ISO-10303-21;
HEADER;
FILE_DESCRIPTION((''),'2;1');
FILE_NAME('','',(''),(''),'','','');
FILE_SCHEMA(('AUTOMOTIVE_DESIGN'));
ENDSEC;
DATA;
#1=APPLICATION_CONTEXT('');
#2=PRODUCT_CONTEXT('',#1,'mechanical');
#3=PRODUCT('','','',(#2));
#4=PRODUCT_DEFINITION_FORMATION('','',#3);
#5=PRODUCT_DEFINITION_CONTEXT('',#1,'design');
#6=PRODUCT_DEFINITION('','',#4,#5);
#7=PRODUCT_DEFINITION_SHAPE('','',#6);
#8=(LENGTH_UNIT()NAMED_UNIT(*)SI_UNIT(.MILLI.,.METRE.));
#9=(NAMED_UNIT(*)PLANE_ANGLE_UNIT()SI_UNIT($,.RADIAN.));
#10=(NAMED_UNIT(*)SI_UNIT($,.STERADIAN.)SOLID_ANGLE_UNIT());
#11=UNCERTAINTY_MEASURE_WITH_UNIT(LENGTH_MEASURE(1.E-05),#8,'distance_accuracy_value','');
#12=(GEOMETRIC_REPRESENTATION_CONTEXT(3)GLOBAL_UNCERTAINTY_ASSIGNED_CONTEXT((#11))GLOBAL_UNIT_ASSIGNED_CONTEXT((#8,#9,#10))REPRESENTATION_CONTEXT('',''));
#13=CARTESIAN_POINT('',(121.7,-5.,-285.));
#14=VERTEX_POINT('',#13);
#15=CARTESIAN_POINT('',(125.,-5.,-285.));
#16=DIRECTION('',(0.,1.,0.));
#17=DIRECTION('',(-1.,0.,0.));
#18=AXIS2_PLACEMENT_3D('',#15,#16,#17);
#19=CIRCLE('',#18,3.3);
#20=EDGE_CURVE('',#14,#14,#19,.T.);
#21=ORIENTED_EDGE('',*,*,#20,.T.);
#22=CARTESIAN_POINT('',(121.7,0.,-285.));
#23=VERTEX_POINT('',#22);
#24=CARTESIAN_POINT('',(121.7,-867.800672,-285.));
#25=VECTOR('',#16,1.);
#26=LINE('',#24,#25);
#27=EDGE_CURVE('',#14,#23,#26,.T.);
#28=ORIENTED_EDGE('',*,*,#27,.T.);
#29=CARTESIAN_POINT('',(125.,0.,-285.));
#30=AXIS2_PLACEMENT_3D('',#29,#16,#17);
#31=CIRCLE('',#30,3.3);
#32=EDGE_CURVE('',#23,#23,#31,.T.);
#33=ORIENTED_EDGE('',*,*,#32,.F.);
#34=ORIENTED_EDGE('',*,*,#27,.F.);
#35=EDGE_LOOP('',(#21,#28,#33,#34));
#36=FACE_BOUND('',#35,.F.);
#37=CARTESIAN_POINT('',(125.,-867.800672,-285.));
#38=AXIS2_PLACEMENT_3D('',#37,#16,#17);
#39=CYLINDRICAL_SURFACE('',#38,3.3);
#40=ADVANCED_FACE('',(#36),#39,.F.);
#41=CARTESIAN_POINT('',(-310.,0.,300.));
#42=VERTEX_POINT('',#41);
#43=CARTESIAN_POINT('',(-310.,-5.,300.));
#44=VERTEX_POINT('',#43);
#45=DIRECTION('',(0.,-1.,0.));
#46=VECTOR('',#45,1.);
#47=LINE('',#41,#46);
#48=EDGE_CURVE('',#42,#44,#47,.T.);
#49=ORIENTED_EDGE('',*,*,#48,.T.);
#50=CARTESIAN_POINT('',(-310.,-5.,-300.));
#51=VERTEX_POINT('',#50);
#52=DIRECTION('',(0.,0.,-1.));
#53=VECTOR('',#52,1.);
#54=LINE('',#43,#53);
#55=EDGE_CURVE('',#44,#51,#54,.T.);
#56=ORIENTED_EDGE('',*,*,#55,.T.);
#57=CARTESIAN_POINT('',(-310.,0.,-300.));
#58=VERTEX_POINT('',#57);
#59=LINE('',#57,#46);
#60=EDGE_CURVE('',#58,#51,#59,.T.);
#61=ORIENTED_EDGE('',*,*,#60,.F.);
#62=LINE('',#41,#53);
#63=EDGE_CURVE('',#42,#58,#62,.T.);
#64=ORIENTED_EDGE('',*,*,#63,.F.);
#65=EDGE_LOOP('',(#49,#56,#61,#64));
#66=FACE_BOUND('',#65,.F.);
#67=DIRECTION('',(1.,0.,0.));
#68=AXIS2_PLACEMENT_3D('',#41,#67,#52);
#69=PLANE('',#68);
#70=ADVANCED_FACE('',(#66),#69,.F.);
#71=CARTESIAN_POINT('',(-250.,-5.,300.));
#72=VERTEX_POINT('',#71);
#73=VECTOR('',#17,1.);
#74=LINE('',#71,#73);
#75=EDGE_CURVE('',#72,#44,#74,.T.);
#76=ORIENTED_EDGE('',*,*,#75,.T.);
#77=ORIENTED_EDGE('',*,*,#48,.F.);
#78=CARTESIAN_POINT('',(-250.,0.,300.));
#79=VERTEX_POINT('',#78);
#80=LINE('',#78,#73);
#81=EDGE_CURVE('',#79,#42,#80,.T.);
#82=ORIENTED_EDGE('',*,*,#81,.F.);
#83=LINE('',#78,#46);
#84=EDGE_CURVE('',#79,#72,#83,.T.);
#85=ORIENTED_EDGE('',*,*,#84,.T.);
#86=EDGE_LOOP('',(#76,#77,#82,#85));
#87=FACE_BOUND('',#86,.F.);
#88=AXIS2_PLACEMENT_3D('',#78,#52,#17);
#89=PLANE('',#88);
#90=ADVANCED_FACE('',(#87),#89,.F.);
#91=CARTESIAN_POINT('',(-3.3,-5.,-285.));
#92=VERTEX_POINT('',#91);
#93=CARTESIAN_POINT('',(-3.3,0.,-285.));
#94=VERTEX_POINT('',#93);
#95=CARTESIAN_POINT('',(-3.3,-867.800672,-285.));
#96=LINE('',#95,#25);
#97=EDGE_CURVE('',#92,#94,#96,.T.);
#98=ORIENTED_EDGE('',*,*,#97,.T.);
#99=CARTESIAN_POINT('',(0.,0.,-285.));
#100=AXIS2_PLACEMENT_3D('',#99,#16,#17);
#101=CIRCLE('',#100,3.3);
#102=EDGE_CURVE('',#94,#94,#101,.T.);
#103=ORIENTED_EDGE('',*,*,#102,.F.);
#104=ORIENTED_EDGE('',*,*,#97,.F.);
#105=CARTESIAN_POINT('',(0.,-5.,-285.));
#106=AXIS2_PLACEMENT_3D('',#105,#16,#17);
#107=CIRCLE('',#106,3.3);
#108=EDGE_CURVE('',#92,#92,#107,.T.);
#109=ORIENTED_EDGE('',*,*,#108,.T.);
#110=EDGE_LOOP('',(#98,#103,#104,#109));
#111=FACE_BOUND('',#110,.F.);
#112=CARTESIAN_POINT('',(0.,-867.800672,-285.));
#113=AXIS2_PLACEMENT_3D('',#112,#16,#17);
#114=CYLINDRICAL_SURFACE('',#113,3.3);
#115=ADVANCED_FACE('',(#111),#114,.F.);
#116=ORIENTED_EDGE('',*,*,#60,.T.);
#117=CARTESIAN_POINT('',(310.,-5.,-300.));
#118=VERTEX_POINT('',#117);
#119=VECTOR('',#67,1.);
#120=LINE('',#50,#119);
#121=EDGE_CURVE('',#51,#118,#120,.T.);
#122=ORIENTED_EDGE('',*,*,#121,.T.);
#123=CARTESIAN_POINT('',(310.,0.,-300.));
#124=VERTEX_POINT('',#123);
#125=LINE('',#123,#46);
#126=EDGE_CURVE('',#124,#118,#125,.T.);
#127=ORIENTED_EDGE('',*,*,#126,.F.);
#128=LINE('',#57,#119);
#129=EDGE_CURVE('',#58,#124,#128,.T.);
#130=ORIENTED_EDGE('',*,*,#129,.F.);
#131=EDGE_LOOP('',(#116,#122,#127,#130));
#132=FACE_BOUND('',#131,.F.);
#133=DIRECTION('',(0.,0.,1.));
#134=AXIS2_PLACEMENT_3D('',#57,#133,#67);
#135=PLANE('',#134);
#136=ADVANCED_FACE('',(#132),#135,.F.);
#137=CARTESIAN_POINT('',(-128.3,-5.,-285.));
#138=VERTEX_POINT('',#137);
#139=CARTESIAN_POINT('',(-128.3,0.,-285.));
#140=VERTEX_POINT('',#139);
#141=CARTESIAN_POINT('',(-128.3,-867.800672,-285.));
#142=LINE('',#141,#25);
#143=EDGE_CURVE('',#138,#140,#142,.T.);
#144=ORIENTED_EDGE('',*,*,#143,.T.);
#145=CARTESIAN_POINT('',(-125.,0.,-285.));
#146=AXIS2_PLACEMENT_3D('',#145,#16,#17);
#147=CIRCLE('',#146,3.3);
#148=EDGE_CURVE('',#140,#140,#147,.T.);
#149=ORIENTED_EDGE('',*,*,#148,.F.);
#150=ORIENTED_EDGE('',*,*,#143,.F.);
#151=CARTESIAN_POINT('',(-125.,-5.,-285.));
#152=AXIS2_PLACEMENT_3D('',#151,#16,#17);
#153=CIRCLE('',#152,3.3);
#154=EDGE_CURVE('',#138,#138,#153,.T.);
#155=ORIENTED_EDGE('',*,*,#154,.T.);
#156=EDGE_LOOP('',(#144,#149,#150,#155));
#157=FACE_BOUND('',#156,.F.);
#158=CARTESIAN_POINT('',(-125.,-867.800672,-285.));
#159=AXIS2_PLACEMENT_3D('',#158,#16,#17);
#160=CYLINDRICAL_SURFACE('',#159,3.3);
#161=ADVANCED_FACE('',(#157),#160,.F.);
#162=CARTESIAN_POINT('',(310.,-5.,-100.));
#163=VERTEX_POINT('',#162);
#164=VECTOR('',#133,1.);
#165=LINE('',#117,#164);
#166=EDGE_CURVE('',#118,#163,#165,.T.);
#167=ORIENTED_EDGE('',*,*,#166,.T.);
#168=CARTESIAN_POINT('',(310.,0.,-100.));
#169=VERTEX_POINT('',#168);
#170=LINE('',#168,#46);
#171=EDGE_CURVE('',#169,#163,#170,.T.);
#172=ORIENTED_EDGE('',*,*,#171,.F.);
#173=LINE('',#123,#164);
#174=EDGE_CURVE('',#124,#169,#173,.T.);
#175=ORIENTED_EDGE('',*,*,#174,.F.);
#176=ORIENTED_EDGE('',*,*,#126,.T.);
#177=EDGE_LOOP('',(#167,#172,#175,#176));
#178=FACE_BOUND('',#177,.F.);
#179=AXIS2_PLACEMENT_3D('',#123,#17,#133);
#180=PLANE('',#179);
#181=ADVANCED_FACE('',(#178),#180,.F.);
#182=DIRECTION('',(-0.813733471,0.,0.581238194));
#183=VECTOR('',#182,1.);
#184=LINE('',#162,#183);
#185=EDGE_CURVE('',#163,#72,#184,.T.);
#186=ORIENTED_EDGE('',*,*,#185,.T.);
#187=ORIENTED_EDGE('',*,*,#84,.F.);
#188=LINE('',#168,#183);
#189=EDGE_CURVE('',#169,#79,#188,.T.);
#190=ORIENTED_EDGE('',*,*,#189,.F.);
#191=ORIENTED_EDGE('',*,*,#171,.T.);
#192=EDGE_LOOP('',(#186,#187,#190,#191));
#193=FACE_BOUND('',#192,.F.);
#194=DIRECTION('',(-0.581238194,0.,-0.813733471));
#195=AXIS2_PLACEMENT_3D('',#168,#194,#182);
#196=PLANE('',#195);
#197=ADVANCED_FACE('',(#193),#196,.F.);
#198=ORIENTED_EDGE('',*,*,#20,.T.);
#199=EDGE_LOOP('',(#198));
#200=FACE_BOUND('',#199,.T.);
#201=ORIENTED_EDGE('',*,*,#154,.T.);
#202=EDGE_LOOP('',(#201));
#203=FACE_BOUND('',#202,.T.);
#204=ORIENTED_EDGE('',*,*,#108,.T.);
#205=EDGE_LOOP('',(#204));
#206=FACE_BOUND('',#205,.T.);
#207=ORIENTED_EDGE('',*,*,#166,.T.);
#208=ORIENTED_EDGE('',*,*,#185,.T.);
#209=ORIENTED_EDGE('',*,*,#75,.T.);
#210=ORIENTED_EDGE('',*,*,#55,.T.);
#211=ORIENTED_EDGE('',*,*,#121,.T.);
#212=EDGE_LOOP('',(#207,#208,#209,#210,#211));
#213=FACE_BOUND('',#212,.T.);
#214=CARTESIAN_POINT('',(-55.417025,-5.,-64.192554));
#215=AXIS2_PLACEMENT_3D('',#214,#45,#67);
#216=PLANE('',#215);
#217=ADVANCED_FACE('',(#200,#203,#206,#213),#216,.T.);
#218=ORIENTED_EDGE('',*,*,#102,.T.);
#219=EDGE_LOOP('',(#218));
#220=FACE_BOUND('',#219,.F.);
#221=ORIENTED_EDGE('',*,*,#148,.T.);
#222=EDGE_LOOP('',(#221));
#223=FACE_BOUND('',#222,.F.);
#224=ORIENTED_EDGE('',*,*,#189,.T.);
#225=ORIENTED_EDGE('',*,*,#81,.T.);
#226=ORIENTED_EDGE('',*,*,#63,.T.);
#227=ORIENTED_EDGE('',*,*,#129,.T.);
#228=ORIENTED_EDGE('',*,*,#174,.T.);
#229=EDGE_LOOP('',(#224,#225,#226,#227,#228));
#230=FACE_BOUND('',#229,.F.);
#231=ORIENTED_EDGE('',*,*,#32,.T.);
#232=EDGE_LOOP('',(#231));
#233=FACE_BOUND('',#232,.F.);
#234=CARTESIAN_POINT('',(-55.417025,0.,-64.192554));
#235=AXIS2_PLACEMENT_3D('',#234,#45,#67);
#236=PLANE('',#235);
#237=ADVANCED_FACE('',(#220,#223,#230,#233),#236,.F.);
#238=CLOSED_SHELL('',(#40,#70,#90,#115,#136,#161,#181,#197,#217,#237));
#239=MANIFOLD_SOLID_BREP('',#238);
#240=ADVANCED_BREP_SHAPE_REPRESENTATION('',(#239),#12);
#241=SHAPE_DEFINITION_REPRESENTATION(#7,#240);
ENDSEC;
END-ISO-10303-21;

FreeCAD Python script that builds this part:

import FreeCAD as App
import Part
import Sketcher
from FreeCAD import Vector
Q = App.Units.Quantity

doc = App.newDocument("Part")
body = doc.addObject("PartDesign::Body", "Body")

# Sketch on XZ plane
sketch1 = body.newObject("Sketcher::SketchObject", "Sketch")
sketch1.AttachmentSupport = (doc.getObject("XZ_Plane"), [""])
sketch1.MapMode = "FlatFace"
sketch1.addGeometry([
    Part.LineSegment(Vector(-250, 300, 0), Vector(-310, 300, 0)),  # 0
    Part.LineSegment(Vector(-310, 300, 0), Vector(-310, -300, 0)),  # 1
    Part.LineSegment(Vector(-310, -300, 0), Vector(310, -300, 0)),  # 2
    Part.LineSegment(Vector(310, -300, 0), Vector(310, -100, 0)),  # 3
    Part.LineSegment(Vector(310, -100, 0), Vector(-250, 300, 0)),  # 4
], False)
sketch1.addConstraint([
    Sketcher.Constraint("Coincident", 0, 2, 1, 1),
    Sketcher.Constraint("Coincident", 1, 2, 2, 1),
    Sketcher.Constraint("Coincident", 2, 2, 3, 1),
    Sketcher.Constraint("Coincident", 3, 2, 4, 1),
    Sketcher.Constraint("Coincident", 4, 2, 0, 1),
    Sketcher.Constraint("Horizontal", 0),
    Sketcher.Constraint("Vertical", 1),
    Sketcher.Constraint("Horizontal", 2),
    Sketcher.Constraint("Vertical", 3),
    Sketcher.Constraint("Symmetric", 0, 2, 2, 2, -1, 1),
    Sketcher.Constraint("DistanceX", 0, 2, 0, 1, Q("60 mm")),
    Sketcher.Constraint("DistanceX", 2, 1, 2, 2, Q("620 mm")),
    Sketcher.Constraint("DistanceY", 1, 2, 1, 1, Q("600 mm")),
    Sketcher.Constraint("DistanceY", 3, 1, 3, 2, Q("200 mm")),
])
pad1 = body.newObject("PartDesign::Pad", "Pad")
pad1.Profile = sketch1
pad1.Length = 5

# Sketch on XZ plane
sketch2 = body.newObject("Sketcher::SketchObject", "Sketch001")
sketch2.AttachmentSupport = (doc.getObject("XZ_Plane"), [""])
sketch2.MapMode = "FlatFace"
sketch2.AttachmentOffset = App.Placement(Vector(0, 0, 5), App.Rotation())
sketch2.addGeometry([
    Part.Circle(Vector(-125, -285, 0), Vector(0, 0, 1), 3.3),
    Part.Circle(Vector(0, -285, 0), Vector(0, 0, 1), 3.3),
    Part.Circle(Vector(125, -285, 0), Vector(0, 0, 1), 3.3),
], False)
sketch2.addConstraint([
    Sketcher.Constraint("Equal", 0, 1),
    Sketcher.Constraint("Equal", 1, 2),
    Sketcher.Constraint("Symmetric", 0, 3, 2, 3, -2),
    Sketcher.Constraint("PointOnObject", 1, 3, -2),
    Sketcher.Constraint("Horizontal", 0, 3, 1, 3),
    Sketcher.Constraint("Diameter", 0, Q("6.6 mm")),
    Sketcher.Constraint("DistanceX", 0, 3, -1, 1, Q("125 mm")),
    Sketcher.Constraint("DistanceY", 0, 3, -1, 1, Q("285 mm")),
])
doc.recompute()
hole = body.newObject("PartDesign::Hole", "Hole")
hole.Profile = sketch2
hole.ThreadType = "None"
hole.Diameter = 6.6
hole.DepthType = "ThroughAll"

doc.recompute()
